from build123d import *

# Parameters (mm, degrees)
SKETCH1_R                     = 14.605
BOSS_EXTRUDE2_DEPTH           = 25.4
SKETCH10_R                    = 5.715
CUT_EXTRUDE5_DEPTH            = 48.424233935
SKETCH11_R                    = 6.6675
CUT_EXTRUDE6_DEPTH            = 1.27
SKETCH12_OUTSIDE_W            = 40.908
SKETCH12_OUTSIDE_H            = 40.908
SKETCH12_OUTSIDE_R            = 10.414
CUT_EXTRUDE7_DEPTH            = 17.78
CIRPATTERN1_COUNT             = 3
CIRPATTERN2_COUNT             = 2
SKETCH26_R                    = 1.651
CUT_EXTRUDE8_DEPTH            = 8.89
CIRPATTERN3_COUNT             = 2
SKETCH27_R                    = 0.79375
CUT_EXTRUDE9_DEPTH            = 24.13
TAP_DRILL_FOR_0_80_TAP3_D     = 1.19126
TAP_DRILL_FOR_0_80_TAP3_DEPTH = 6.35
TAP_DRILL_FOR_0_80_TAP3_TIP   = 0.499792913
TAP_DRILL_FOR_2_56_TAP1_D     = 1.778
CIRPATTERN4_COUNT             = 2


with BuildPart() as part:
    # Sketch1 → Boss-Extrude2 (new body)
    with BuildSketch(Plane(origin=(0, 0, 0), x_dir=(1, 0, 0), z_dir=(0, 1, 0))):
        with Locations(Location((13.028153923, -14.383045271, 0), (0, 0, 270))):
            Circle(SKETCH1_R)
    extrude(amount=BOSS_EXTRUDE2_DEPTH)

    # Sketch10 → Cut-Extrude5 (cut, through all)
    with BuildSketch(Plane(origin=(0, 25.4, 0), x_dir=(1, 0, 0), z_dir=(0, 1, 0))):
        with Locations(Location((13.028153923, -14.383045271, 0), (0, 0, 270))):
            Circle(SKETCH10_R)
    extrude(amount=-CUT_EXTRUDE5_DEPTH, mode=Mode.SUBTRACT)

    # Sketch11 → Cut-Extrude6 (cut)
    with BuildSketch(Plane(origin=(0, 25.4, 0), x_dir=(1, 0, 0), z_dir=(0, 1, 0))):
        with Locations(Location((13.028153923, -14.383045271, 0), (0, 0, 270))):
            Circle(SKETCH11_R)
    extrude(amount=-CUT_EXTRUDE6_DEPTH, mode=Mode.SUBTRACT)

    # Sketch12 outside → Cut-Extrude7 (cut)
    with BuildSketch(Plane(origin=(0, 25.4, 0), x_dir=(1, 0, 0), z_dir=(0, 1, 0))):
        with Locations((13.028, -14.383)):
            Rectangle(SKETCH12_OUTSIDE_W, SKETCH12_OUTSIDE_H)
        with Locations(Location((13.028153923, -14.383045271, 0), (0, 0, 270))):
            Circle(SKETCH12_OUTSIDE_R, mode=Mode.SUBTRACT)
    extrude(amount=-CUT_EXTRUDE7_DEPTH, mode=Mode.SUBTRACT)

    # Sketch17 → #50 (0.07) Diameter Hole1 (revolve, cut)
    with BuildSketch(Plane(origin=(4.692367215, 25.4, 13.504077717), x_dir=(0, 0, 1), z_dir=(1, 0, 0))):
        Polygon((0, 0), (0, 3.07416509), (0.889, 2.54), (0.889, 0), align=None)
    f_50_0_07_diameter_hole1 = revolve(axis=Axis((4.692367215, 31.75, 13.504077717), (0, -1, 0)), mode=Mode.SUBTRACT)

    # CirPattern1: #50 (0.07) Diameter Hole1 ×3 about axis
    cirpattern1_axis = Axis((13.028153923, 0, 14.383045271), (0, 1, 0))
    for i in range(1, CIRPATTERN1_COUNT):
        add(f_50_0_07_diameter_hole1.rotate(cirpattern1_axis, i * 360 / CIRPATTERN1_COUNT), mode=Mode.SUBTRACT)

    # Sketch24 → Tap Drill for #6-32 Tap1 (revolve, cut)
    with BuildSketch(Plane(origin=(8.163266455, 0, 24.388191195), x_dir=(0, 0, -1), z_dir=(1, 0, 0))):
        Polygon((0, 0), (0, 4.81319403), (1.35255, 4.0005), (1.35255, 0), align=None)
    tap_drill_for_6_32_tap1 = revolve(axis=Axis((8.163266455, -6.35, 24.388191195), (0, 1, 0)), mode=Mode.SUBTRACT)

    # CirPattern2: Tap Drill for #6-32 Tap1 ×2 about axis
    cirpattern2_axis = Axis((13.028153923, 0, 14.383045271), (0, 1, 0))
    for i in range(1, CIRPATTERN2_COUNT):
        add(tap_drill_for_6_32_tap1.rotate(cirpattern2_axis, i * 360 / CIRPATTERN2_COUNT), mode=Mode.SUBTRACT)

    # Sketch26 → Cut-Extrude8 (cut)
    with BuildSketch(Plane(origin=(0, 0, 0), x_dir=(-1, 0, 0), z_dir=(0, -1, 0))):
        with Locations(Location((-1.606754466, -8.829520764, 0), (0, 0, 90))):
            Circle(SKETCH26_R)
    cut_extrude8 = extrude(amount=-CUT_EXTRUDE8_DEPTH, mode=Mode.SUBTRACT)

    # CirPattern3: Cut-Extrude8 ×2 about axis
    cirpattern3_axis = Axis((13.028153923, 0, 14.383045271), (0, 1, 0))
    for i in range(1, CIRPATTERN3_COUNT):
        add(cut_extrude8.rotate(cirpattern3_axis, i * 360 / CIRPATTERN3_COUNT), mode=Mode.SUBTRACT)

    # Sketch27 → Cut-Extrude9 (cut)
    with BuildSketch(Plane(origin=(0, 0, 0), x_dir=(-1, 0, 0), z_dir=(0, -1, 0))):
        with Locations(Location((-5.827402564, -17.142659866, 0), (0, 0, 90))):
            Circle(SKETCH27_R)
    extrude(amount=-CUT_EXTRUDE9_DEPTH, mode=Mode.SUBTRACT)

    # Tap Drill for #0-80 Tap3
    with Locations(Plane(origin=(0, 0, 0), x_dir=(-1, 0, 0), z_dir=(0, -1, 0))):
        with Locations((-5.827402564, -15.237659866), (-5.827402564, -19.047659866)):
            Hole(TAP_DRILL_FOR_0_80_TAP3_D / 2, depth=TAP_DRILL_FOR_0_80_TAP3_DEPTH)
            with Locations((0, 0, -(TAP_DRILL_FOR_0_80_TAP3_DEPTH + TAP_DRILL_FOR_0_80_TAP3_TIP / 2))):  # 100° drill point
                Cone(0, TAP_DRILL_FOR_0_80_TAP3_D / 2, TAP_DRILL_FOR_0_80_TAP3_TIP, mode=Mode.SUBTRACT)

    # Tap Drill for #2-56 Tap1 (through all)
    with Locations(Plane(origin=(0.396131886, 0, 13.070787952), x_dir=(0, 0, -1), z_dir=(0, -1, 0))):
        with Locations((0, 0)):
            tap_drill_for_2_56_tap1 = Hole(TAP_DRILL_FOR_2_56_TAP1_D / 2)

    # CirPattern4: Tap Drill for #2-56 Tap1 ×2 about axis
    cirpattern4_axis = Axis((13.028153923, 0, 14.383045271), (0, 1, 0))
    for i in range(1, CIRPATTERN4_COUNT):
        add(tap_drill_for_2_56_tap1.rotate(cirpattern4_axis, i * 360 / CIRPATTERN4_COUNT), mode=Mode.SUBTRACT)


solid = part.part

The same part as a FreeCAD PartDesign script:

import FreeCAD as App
import Part
import Sketcher
Q = App.Units.Quantity

doc = App.newDocument("Part")
body = doc.addObject("PartDesign::Body", "Body")

sketch1 = body.newObject("Sketcher::SketchObject", "Sketch")
sketch1.AttachmentSupport = (doc.getObject("XZ_Plane"), [""])
sketch1.MapMode = "FlatFace"
sketch1.addGeometry(Part.Circle(App.Vector(13, 14, 0), App.Vector(0, 0, 1), 15), False)
sketch1.addConstraint([
    Sketcher.Constraint("Diameter", 0, Q("1.15 in")),
    Sketcher.Constraint("DistanceX", -1, 1, 0, 3, 13.028154),
    Sketcher.Constraint("DistanceY", -1, 1, 0, 3, 14.383045),
])
pad1 = body.newObject("PartDesign::Pad", "Pad")
pad1.Profile = sketch1
pad1.Length = Q("1 in")
pad1.Reversed = True

sketch2 = body.newObject("Sketcher::SketchObject", "Sketch001")
sketch2.AttachmentSupport = (doc.getObject("XZ_Plane"), [""])
sketch2.MapMode = "FlatFace"
sketch2.AttachmentOffset = App.Placement(App.Vector(0, 0, -1 * 25.4), App.Rotation())
sketch2.addGeometry(Part.Circle(App.Vector(13, 14, 0), App.Vector(0, 0, 1), 6), False)
sketch2.addConstraint([
    Sketcher.Constraint("Diameter", 0, Q("0.45 in")),
    Sketcher.Constraint("DistanceX", -1, 1, 0, 3, 13.028154),
    Sketcher.Constraint("DistanceY", -1, 1, 0, 3, 14.383045),
])
pocket1 = body.newObject("PartDesign::Pocket", "Pocket")
pocket1.Profile = sketch2
pocket1.Type = "ThroughAll"
pocket1.Reversed = True

sketch3 = body.newObject("Sketcher::SketchObject", "Sketch002")
sketch3.AttachmentSupport = (doc.getObject("XZ_Plane"), [""])
sketch3.MapMode = "FlatFace"
sketch3.AttachmentOffset = App.Placement(App.Vector(0, 0, -1 * 25.4), App.Rotation())
sketch3.addGeometry(Part.Circle(App.Vector(13, 14, 0), App.Vector(0, 0, 1), 7), False)
sketch3.addConstraint([
    Sketcher.Constraint("Diameter", 0, Q("0.525 in")),
    Sketcher.Constraint("DistanceX", -1, 1, 0, 3, 13.028154),
    Sketcher.Constraint("DistanceY", -1, 1, 0, 3, 14.383045),
])
pocket2 = body.newObject("PartDesign::Pocket", "Pocket001")
pocket2.Profile = sketch3
pocket2.Length = Q("0.05 in")
pocket2.Reversed = True

sketch4 = body.newObject("Sketcher::SketchObject", "Sketch003")
sketch4.AttachmentSupport = (doc.getObject("XZ_Plane"), [""])
sketch4.MapMode = "FlatFace"
sketch4.AttachmentOffset = App.Placement(App.Vector(0, 0, -1 * 25.4), App.Rotation())
sketch4.addGeometry([
    Part.LineSegment(App.Vector(-7, -6, 0), App.Vector(-7, 35, 0)),
    Part.LineSegment(App.Vector(-7, 35, 0), App.Vector(33, 35, 0)),
    Part.LineSegment(App.Vector(33, 35, 0), App.Vector(33, -6, 0)),
    Part.LineSegment(App.Vector(33, -6, 0), App.Vector(-7, -6, 0)),
    Part.Circle(App.Vector(13, 14, 0), App.Vector(0, 0, 1), 10),
], False)
sketch4.addConstraint([
    Sketcher.Constraint("Coincident", 0, 2, 1, 1),
    Sketcher.Constraint("Coincident", 1, 2, 2, 1),
    Sketcher.Constraint("Coincident", 2, 2, 3, 1),
    Sketcher.Constraint("Coincident", 3, 2, 0, 1),
    Sketcher.Constraint("Vertical", 0),
    Sketcher.Constraint("Horizontal", 1),
    Sketcher.Constraint("Vertical", 2),
    Sketcher.Constraint("Horizontal", 3),
    Sketcher.Constraint("Equal", 3, 0),
    Sketcher.Constraint("Diameter", 4, Q("0.82 in")),
    Sketcher.Constraint("DistanceX", 1, 1, 1, 2, 40.908),
    Sketcher.Constraint("DistanceX", 0, 2, -1, 1, 7.426),
    Sketcher.Constraint("DistanceY", -1, 1, 0, 2, 34.837),
    Sketcher.Constraint("DistanceX", -1, 1, 4, 3, 13.028154),
    Sketcher.Constraint("DistanceY", -1, 1, 4, 3, 14.383045),
])
pocket3 = body.newObject("PartDesign::Pocket", "Pocket002")
pocket3.Profile = sketch4
pocket3.Length = Q("0.7 in")
pocket3.Reversed = True

sketch5 = body.newObject("Sketcher::SketchObject", "Sketch004")
sketch5.AttachmentSupport = (doc.getObject("YZ_Plane"), [""])
sketch5.MapMode = "FlatFace"
sketch5.AttachmentOffset = App.Placement(App.Vector(0, 0, 4.692367), App.Rotation())
sketch5.addGeometry([
    Part.LineSegment(App.Vector(22.3, 13.5, 0), App.Vector(25.4, 13.5, 0)),
    Part.LineSegment(App.Vector(25.4, 13.5, 0), App.Vector(25.4, 14.4, 0)),
    Part.LineSegment(App.Vector(25.4, 14.4, 0), App.Vector(22.9, 14.4, 0)),
    Part.LineSegment(App.Vector(22.9, 14.4, 0), App.Vector(22.3, 13.5, 0)),
], False)
sketch5.addGeometry(Part.LineSegment(App.Vector(25.4, 13.5, 0), App.Vector(22.3, 13.5, 0)), True)
sketch5.addConstraint([
    Sketcher.Constraint("Coincident", 0, 2, 1, 1),
    Sketcher.Constraint("Coincident", 1, 2, 2, 1),
    Sketcher.Constraint("Coincident", 2, 2, 3, 1),
    Sketcher.Constraint("Coincident", 3, 2, 0, 1),
    Sketcher.Constraint("Horizontal", 0),
    Sketcher.Constraint("Vertical", 1),
    Sketcher.Constraint("Horizontal", 2),
    Sketcher.Constraint("Horizontal", 4),
    Sketcher.Constraint("Coincident", 4, 1, 0, 2),
    Sketcher.Constraint("Equal", 0, 4),
    Sketcher.Constraint("DistanceX", 2, 2, 2, 1, Q("0.1 in")),
    Sketcher.Constraint("DistanceX", -1, 1, 0, 2, Q("1 in")),
    Sketcher.Constraint("Angle", 3, Q("-121 deg")),
    Sketcher.Constraint("DistanceY", 1, 1, 1, 2, Q("0.035 in")),
    Sketcher.Constraint("DistanceY", -1, 1, 0, 2, 13.504078),
])
groove = body.newObject("PartDesign::Groove", "Groove")
groove.Profile = sketch5
groove.ReferenceAxis = (sketch5, ["Axis0"])
groove.Angle = 360
doc.recompute()

datumline = body.newObject("PartDesign::Line", "DatumLine")
datumline.Placement = App.Placement(App.Vector(13.028154, 0, 14.383045), App.Rotation(App.Vector(0, 0, 1), App.Vector(0, 1, 0)))
polarpattern = body.newObject("PartDesign::PolarPattern", "PolarPattern")
polarpattern.Originals = [groove]
polarpattern.Axis = (datumline, [""])
polarpattern.Angle = 360
polarpattern.Occurrences = 3
body.Tip = polarpattern

sketch6 = body.newObject("Sketcher::SketchObject", "Sketch005")
sketch6.AttachmentSupport = (doc.getObject("YZ_Plane"), [""])
sketch6.MapMode = "FlatFace"
sketch6.AttachmentOffset = App.Placement(App.Vector(0, 0, 8.163266), App.Rotation())
sketch6.addGeometry([
    Part.LineSegment(App.Vector(4.8, 24.4, 0), App.Vector(0, 24.4, 0)),
    Part.LineSegment(App.Vector(0, 24.4, 0), App.Vector(0, 23, 0)),
    Part.LineSegment(App.Vector(0, 23, 0), App.Vector(4, 23, 0)),
    Part.LineSegment(App.Vector(4, 23, 0), App.Vector(4.8, 24.4, 0)),
], False)
sketch6.addGeometry(Part.LineSegment(App.Vector(0, 24.4, 0), App.Vector(4.8, 24.4, 0)), True)
sketch6.addConstraint([
    Sketcher.Constraint("Coincident", 0, 2, 1, 1),
    Sketcher.Constraint("Coincident", 1, 2, 2, 1),
    Sketcher.Constraint("Coincident", 2, 2, 3, 1),
    Sketcher.Constraint("Coincident", 3, 2, 0, 1),
    Sketcher.Constraint("Horizontal", 0),
    Sketcher.Constraint("Vertical", 1),
    Sketcher.Constraint("Horizontal", 2),
    Sketcher.Constraint("Horizontal", 4),
    Sketcher.Constraint("Coincident", 4, 1, 0, 2),
    Sketcher.Constraint("PointOnObject", 0, 2, -2),
    Sketcher.Constraint("Equal", 0, 4),
    Sketcher.Constraint("Angle", 3, Q("59 deg")),
    Sketcher.Constraint("DistanceX", 2, 1, 2, 2, Q("0.1575 in")),
    Sketcher.Constraint("DistanceY", 1, 2, 1, 1, 1.35255),
    Sketcher.Constraint("DistanceY", -1, 1, 0, 2, 24.388191),
])
groove2 = body.newObject("PartDesign::Groove", "Groove001")
groove2.Profile = sketch6
groove2.ReferenceAxis = (sketch6, ["Axis0"])
groove2.Angle = 360
doc.recompute()

datumline2 = body.newObject("PartDesign::Line", "DatumLine001")
datumline2.Placement = App.Placement(App.Vector(13.028154, 0, 14.383045), App.Rotation(App.Vector(0, 0, 1), App.Vector(0, 1, 0)))
polarpattern2 = body.newObject("PartDesign::PolarPattern", "PolarPattern001")
polarpattern2.Originals = [groove2]
polarpattern2.Axis = (datumline2, [""])
polarpattern2.Angle = 360
polarpattern2.Occurrences = 2
body.Tip = polarpattern2

sketch7 = body.newObject("Sketcher::SketchObject", "Sketch006")
sketch7.AttachmentSupport = (doc.getObject("XZ_Plane"), [""])
sketch7.MapMode = "FlatFace"
sketch7.addGeometry(Part.Circle(App.Vector(1.6, 8.8, 0), App.Vector(0, 0, 1), 1.7), False)
sketch7.addConstraint([
    Sketcher.Constraint("Diameter", 0, Q("0.13 in")),
    Sketcher.Constraint("DistanceY", -1, 1, 0, 3, 8.829521),
    Sketcher.Constraint("DistanceX", -1, 1, 0, 3, 1.606754),
])
pocket4 = body.newObject("PartDesign::Pocket", "Pocket003")
pocket4.Profile = sketch7
pocket4.Length = Q("0.35 in")
doc.recompute()

datumline3 = body.newObject("PartDesign::Line", "DatumLine002")
datumline3.Placement = App.Placement(App.Vector(13.028154, 0, 14.383045), App.Rotation(App.Vector(0, 0, 1), App.Vector(0, 1, 0)))
polarpattern3 = body.newObject("PartDesign::PolarPattern", "PolarPattern002")
polarpattern3.Originals = [pocket4]
polarpattern3.Axis = (datumline3, [""])
polarpattern3.Angle = 360
polarpattern3.Occurrences = 2
body.Tip = polarpattern3

sketch8 = body.newObject("Sketcher::SketchObject", "Sketch007")
sketch8.AttachmentSupport = (doc.getObject("XZ_Plane"), [""])
sketch8.MapMode = "FlatFace"
sketch8.addGeometry(Part.Circle(App.Vector(5.8, 17.1, 0), App.Vector(0, 0, 1), 0.8), False)
sketch8.addConstraint([
    Sketcher.Constraint("Diameter", 0, Q("0.0625 in")),
    Sketcher.Constraint("DistanceY", -1, 1, 0, 3, 17.14266),
    Sketcher.Constraint("DistanceX", -1, 1, 0, 3, 5.827403),
])
pocket5 = body.newObject("PartDesign::Pocket", "Pocket004")
pocket5.Profile = sketch8
pocket5.Length = Q("0.95 in")

sketch9 = body.newObject("Sketcher::SketchObject", "Sketch008")
sketch9.AttachmentSupport = (doc.getObject("XZ_Plane"), [""])
sketch9.MapMode = "FlatFace"
sketch9.addGeometry([
    Part.Circle(App.Vector(5.8, 15.2, 0), App.Vector(0, 0, 1), 0.6),
    Part.Circle(App.Vector(5.8, 19, 0), App.Vector(0, 0, 1), 0.6),
], False)
sketch9.addConstraint([
    Sketcher.Constraint("Equal", 0, 1),
    Sketcher.Constraint("Vertical", 0, 3, 1, 3),
    Sketcher.Constraint("Diameter", 0, Q("0.0469 in")),
    Sketcher.Constraint("DistanceY", 0, 3, 1, 3, Q("0.15 in")),
    Sketcher.Constraint("DistanceY", -1, 1, 0, 3, 15.23766),
    Sketcher.Constraint("DistanceX", -1, 1, 0, 3, 5.827403),
])
doc.recompute()
hole = body.newObject("PartDesign::Hole", "Hole")
hole.Profile = sketch9
hole.ThreadType = "None"
hole.Diameter = Q("0.0469 in")
hole.DepthType = "Dimension"
hole.Depth = Q("0.25 in")
hole.DrillPoint = "Angled"
hole.DrillPointAngle = 100

sketch10 = body.newObject("Sketcher::SketchObject", "Sketch009")
sketch10.AttachmentSupport = (doc.getObject("XZ_Plane"), [""])
sketch10.MapMode = "FlatFace"
sketch10.addGeometry(Part.Circle(App.Vector(0.4, 13.1, 0), App.Vector(0, 0, 1), 0.9), False)
sketch10.addConstraint([
    Sketcher.Constraint("Diameter", 0, Q("0.07 in")),
    Sketcher.Constraint("DistanceX", -1, 1, 0, 3, 0.396132),
    Sketcher.Constraint("DistanceY", -1, 1, 0, 3, 13.070788),
])
doc.recompute()
hole2 = body.newObject("PartDesign::Hole", "Hole001")
hole2.Profile = sketch10
hole2.ThreadType = "None"
hole2.Diameter = Q("0.07 in")
hole2.DepthType = "ThroughAll"
doc.recompute()

datumline4 = body.newObject("PartDesign::Line", "DatumLine003")
datumline4.Placement = App.Placement(App.Vector(13.028154, 0, 14.383045), App.Rotation(App.Vector(0, 0, 1), App.Vector(0, 1, 0)))
polarpattern4 = body.newObject("PartDesign::PolarPattern", "PolarPattern003")
polarpattern4.Originals = [hole2]
polarpattern4.Axis = (datumline4, [""])
polarpattern4.Angle = 360
polarpattern4.Occurrences = 2
body.Tip = polarpattern4

doc.recompute()
